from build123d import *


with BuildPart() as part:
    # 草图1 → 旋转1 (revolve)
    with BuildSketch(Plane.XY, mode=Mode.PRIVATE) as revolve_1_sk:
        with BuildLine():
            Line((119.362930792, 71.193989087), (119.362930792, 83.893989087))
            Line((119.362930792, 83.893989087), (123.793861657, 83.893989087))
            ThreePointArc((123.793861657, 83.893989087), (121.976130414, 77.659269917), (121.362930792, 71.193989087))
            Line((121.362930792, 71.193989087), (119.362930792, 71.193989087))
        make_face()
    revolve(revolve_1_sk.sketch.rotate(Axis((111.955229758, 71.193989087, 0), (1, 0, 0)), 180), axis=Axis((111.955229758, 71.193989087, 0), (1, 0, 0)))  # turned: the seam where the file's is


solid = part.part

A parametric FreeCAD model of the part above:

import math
import FreeCAD as App
import Part
import Sketcher
from FreeCAD import Vector
Q = App.Units.Quantity

doc = App.newDocument("Part")
body = doc.addObject("PartDesign::Body", "Body")

sketch1 = doc.addObject("Sketcher::SketchObject", "Sketch")
body.addObject(sketch1)
sketch1.AttachmentSupport = (doc.XY_Plane, [""])
sketch1.MapMode = "FlatFace"
sketch1.addGeometry([
    Part.LineSegment(Vector(119.4, 83.9, 0), Vector(119.4, 71.2, 0)),
    Part.LineSegment(Vector(119.4, 71.2, 0), Vector(121.4, 71.2, 0)),
    Part.ArcOfCircle(Part.Circle(Vector(155.8, 71.2, 0), Vector(0, 0, 1), 34.4), math.radians(158), math.radians(180)),
    Part.LineSegment(Vector(123.8, 83.9, 0), Vector(119.4, 83.9, 0)),
], False)
sketch1.addGeometry(Part.LineSegment(Vector(119.4, 71.2, 0), Vector(155.8, 71.2, 0)), True)
sketch1.addConstraint([
    Sketcher.Constraint("Coincident", 0, 2, 1, 1),
    Sketcher.Constraint("Coincident", 1, 2, 2, 2),
    Sketcher.Constraint("Coincident", 2, 1, 3, 1),
    Sketcher.Constraint("Coincident", 3, 2, 0, 1),
    Sketcher.Constraint("Vertical", 0),
    Sketcher.Constraint("Horizontal", 1),
    Sketcher.Constraint("Horizontal", 3),
    Sketcher.Constraint("Horizontal", 4),
    Sketcher.Constraint("Coincident", 4, 1, 0, 2),
    Sketcher.Constraint("Coincident", 4, 2, 2, 3),
    Sketcher.Constraint("DistanceX", 1, 1, 1, 2, Q("2 mm")),
    Sketcher.Constraint("Radius", 2, Q("34.39 mm")),
    Sketcher.Constraint("DistanceY", 0, 2, 0, 1, Q("12.7 mm")),
    Sketcher.Constraint("DistanceX", -1, 1, 2, 3, Q("155.752931 mm")),
    Sketcher.Constraint("DistanceY", -1, 1, 2, 3, Q("71.193989 mm")),
])
revolution = doc.addObject("PartDesign::Revolution", "Revolution")
body.addObject(revolution)
revolution.Profile = sketch1
revolution.ReferenceAxis = (sketch1, ["Axis0"])
revolution.Angle = 360

doc.recompute()
